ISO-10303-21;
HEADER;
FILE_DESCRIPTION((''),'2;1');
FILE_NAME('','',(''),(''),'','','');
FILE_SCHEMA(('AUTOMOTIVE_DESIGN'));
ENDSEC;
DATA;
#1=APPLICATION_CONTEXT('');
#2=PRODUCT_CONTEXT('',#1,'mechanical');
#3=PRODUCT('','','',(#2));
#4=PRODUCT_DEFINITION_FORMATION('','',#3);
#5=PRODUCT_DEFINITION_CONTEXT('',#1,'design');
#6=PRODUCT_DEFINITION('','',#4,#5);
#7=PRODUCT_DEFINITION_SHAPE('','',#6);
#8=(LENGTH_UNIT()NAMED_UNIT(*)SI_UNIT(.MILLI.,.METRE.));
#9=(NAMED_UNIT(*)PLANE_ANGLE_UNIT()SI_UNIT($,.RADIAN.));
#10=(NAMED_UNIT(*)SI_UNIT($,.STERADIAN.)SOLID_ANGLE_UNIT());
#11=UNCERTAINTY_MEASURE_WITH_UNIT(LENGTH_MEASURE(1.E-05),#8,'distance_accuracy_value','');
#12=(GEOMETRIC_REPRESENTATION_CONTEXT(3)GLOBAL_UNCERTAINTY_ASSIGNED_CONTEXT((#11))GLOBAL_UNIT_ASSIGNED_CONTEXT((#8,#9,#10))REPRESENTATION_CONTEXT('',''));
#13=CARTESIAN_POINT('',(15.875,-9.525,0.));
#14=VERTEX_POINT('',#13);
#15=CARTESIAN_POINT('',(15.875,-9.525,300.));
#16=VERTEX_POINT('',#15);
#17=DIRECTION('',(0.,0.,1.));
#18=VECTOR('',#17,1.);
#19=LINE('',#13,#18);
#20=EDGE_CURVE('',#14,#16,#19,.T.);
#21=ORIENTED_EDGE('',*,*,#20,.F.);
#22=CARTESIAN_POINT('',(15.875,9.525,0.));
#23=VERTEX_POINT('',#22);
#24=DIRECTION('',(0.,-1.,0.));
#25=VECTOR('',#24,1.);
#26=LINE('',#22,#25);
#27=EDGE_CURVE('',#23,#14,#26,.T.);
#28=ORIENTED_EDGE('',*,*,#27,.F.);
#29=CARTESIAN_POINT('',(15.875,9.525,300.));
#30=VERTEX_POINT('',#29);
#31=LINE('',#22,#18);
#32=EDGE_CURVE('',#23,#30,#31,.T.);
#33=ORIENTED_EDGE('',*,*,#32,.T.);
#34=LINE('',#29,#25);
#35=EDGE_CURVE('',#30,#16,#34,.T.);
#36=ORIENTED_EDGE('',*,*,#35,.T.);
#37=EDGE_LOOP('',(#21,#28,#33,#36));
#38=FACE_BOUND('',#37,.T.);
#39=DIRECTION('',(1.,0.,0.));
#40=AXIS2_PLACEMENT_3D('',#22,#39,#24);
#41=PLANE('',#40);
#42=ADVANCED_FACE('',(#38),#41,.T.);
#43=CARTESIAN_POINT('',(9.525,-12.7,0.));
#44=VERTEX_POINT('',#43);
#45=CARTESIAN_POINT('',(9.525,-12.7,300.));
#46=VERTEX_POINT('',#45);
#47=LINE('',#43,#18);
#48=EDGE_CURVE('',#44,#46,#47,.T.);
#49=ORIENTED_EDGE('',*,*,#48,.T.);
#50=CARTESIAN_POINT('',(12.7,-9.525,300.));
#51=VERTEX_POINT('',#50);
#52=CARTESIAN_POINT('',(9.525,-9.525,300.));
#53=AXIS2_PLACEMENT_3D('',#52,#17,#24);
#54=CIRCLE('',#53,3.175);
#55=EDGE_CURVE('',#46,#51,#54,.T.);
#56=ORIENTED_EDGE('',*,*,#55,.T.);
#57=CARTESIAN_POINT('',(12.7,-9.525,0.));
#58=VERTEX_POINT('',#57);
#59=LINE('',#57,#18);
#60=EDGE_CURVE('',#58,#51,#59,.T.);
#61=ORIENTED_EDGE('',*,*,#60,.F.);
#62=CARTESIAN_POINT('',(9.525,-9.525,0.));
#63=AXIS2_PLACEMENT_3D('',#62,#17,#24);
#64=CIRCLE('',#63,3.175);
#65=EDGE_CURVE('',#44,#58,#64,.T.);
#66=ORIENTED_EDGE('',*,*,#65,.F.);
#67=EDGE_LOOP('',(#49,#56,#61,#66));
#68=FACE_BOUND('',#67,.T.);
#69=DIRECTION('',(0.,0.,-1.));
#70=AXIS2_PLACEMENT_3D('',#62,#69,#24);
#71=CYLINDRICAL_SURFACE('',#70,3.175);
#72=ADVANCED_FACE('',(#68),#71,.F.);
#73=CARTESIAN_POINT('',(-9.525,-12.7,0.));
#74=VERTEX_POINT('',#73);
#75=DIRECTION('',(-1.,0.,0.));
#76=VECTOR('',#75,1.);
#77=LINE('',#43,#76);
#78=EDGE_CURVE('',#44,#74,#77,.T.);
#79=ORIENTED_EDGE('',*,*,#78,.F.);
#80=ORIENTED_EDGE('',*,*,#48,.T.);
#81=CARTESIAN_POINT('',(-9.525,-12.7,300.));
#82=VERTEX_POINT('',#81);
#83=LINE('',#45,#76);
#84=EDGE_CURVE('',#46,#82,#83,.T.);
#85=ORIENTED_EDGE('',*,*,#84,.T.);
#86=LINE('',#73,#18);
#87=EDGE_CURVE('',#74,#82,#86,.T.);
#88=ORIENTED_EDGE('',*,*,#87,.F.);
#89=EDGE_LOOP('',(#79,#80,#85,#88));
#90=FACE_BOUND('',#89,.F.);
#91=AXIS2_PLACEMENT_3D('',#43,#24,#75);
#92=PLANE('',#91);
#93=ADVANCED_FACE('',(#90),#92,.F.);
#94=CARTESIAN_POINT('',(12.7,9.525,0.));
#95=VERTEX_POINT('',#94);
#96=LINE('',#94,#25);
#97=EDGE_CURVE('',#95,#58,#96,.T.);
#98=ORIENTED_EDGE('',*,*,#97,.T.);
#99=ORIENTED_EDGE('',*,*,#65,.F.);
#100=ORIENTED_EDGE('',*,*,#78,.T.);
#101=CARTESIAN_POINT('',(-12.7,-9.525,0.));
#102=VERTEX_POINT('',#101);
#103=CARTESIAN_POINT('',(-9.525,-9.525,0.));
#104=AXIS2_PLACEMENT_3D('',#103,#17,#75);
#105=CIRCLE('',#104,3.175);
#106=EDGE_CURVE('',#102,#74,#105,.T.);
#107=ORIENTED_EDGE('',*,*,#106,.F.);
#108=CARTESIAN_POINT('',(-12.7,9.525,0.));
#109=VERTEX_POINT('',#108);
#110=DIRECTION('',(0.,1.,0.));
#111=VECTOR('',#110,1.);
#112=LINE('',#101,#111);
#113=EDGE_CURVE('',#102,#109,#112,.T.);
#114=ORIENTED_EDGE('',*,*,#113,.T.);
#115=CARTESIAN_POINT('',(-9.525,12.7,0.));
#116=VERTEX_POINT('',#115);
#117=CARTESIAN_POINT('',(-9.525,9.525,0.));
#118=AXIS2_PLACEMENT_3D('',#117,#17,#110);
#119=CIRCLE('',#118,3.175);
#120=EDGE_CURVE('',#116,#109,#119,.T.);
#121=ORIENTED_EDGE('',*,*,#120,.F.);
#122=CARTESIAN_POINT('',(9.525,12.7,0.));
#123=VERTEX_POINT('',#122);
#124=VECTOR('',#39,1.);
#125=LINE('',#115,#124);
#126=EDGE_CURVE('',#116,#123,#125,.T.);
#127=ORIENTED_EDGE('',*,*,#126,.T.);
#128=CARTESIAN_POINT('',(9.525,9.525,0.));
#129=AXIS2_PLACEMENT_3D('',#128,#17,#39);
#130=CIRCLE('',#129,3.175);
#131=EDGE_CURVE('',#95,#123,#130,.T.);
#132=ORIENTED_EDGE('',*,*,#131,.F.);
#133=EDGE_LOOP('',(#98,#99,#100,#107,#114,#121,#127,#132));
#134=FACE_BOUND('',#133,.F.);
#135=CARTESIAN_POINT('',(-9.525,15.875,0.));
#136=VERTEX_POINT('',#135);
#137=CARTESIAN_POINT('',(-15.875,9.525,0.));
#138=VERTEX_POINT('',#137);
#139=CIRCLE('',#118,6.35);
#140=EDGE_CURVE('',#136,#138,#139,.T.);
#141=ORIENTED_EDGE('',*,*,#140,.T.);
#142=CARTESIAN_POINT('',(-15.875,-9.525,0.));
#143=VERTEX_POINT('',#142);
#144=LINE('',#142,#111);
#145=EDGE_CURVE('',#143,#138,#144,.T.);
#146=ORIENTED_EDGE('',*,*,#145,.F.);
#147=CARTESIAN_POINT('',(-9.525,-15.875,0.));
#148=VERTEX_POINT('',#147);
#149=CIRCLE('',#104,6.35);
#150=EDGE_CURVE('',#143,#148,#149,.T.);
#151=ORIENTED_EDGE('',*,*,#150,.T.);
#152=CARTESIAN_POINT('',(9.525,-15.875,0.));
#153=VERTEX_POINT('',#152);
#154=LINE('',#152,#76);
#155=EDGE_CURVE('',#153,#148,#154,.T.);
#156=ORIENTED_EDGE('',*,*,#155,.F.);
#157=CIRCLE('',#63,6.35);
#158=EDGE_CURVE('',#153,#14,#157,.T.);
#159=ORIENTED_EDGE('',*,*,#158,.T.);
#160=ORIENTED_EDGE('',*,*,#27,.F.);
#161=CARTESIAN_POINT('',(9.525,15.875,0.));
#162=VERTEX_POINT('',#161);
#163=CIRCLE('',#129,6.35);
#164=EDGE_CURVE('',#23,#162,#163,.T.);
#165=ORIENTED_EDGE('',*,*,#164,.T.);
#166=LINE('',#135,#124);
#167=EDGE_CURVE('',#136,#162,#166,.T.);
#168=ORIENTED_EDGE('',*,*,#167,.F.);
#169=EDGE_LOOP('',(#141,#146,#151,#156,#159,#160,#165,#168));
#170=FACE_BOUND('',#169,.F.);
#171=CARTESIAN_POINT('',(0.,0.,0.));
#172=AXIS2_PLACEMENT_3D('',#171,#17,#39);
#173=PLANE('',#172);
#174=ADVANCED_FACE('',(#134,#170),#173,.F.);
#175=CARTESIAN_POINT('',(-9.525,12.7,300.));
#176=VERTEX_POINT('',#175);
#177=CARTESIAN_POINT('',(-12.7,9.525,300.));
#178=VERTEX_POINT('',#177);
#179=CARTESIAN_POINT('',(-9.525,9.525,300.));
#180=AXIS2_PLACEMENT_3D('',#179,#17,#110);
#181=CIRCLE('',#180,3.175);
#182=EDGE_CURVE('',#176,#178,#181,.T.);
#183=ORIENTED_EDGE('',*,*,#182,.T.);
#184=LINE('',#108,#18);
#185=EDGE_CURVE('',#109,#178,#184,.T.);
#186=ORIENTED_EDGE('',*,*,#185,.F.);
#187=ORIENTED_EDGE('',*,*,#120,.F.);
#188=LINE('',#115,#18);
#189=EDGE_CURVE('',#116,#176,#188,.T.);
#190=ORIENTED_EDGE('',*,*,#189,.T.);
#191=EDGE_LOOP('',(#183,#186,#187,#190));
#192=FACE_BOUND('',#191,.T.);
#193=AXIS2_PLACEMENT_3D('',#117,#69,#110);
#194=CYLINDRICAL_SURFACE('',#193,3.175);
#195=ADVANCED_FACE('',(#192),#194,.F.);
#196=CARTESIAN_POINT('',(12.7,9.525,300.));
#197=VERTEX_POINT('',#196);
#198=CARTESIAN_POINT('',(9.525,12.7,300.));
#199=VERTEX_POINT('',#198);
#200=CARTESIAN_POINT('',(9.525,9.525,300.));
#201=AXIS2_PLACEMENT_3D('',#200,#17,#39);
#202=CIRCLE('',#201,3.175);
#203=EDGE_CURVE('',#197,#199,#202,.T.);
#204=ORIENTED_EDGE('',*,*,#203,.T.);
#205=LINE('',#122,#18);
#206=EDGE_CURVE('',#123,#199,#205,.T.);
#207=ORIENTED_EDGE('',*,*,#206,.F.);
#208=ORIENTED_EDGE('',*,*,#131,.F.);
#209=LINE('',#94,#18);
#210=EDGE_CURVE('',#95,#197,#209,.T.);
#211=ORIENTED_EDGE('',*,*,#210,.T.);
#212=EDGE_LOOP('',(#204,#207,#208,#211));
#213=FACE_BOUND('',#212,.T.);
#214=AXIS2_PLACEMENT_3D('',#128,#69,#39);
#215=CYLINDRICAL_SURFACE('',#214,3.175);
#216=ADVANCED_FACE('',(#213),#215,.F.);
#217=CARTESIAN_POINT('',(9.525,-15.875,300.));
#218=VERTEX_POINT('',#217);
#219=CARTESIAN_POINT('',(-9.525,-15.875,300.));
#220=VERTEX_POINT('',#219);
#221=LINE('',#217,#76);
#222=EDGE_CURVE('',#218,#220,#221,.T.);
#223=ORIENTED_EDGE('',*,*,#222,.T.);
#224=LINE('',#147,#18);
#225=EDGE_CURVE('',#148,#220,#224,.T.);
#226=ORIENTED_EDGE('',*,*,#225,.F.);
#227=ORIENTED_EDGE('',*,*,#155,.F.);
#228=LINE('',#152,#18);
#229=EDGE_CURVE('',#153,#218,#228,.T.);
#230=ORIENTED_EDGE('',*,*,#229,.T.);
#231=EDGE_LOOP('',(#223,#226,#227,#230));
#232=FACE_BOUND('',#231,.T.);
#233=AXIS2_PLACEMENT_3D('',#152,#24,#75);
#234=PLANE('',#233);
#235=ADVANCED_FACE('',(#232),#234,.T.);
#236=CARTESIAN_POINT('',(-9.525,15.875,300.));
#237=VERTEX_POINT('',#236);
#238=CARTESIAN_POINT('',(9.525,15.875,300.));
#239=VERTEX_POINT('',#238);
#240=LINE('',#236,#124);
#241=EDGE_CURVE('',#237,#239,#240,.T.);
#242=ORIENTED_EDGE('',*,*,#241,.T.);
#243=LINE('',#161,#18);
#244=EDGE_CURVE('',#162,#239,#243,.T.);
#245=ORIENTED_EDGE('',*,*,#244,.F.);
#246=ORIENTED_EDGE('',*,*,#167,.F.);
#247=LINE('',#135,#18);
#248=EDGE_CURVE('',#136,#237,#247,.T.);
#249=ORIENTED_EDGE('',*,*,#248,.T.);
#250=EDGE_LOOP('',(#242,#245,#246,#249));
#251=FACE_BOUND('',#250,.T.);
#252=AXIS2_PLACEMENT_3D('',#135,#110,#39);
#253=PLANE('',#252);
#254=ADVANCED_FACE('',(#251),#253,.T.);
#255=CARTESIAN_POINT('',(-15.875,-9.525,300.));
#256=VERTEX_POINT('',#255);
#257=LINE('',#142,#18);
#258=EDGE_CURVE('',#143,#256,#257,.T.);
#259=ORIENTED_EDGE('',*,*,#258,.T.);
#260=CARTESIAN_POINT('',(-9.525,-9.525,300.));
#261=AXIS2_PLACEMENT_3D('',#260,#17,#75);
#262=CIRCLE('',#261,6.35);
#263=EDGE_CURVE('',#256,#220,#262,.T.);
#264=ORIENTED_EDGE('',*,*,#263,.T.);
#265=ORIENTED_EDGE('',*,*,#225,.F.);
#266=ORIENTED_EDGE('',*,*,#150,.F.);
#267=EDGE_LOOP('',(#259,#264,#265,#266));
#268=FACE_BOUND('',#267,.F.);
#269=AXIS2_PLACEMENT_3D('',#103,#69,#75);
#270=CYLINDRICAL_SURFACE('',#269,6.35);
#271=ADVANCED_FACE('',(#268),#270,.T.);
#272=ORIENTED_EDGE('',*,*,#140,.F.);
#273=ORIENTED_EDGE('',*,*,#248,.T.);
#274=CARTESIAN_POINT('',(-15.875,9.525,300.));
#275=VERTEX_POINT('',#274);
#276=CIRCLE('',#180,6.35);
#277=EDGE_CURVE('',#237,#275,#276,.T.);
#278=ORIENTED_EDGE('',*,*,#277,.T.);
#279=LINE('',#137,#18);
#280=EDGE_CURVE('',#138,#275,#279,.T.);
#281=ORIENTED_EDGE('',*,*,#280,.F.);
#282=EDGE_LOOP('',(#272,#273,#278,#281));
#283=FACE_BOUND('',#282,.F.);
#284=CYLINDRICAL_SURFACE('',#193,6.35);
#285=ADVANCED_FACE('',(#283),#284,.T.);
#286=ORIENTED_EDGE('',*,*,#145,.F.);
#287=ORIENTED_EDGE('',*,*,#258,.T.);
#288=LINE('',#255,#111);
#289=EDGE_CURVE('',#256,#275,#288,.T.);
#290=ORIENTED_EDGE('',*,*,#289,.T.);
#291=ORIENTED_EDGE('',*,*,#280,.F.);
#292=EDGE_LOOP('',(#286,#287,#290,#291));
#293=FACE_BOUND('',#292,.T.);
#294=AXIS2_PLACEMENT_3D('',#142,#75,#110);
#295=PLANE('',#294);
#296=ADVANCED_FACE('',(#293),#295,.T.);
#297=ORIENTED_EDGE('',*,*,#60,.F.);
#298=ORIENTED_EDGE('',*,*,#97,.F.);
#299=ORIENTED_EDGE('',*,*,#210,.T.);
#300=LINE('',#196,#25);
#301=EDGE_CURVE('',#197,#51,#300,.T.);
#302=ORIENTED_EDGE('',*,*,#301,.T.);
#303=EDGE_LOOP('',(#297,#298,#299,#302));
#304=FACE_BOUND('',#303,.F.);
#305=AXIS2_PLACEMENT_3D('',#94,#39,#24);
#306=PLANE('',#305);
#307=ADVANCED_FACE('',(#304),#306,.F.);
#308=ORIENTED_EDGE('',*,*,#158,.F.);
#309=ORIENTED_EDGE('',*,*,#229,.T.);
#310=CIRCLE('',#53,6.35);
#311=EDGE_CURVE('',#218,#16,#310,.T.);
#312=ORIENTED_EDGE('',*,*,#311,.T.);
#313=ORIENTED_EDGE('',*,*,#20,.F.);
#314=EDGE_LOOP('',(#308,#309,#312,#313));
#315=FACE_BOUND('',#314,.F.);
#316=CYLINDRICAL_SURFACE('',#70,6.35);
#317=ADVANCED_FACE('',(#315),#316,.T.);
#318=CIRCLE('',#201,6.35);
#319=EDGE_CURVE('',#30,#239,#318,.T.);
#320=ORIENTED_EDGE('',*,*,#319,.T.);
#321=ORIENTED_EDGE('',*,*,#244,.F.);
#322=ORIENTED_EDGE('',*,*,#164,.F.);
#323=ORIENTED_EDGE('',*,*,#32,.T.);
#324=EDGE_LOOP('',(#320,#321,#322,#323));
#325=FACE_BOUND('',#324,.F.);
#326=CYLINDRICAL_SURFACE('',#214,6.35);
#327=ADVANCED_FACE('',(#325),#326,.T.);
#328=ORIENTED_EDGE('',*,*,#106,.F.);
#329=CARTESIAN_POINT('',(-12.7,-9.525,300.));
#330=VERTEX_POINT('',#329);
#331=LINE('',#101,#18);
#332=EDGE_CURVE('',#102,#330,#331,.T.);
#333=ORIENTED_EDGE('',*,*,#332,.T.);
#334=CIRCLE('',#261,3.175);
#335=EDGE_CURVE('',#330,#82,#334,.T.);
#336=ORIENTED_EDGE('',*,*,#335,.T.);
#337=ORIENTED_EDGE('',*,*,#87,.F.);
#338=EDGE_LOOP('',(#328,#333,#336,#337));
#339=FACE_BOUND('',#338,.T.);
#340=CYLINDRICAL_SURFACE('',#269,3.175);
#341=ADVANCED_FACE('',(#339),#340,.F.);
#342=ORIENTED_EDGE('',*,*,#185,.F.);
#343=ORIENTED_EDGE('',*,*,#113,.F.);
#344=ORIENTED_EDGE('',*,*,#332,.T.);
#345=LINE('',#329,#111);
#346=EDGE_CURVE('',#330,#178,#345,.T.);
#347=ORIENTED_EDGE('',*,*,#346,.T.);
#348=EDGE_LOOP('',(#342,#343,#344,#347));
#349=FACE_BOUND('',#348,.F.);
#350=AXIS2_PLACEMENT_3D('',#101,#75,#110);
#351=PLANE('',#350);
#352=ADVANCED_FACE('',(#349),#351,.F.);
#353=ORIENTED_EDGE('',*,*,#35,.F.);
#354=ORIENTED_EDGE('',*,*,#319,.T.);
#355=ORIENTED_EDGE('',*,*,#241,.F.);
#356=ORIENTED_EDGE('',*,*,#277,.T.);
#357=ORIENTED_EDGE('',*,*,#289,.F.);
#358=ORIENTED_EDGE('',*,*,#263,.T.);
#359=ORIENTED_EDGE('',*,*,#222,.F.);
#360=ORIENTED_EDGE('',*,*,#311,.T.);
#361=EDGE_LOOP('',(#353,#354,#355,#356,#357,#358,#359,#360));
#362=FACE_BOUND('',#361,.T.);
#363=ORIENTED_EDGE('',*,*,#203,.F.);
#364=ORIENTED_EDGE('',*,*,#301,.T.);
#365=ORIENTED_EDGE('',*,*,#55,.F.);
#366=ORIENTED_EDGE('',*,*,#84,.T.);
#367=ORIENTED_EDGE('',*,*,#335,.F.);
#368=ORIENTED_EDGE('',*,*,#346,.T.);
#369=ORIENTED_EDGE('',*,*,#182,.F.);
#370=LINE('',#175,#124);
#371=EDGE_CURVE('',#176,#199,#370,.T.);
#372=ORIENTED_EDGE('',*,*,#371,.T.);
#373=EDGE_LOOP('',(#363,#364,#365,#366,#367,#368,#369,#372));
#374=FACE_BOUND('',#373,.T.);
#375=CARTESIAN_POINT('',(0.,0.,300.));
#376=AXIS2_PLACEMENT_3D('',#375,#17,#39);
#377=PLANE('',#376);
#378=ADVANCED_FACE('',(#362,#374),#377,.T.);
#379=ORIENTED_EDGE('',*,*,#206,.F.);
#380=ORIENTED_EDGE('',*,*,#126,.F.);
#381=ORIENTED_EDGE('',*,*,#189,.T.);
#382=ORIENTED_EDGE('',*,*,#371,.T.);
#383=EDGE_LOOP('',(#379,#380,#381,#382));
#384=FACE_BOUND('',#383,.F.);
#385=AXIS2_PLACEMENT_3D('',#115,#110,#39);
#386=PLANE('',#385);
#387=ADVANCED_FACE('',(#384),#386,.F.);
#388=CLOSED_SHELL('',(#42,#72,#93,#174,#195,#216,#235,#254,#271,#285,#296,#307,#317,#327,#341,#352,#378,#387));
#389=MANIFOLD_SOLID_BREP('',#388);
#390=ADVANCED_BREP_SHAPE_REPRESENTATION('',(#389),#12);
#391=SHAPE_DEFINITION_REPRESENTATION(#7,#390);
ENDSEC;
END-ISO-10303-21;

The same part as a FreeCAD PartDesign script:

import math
import FreeCAD as App
import Part
import Sketcher
from FreeCAD import Vector
Q = App.Units.Quantity

doc = App.newDocument("Part")
params = doc.addObject("Spreadsheet::Sheet", "Params")
for row, (alias, value) in enumerate([
    ("sketch1_radius", "0.25 in"),
    ("sketch1_radius2", "0.125 in"),
    ("pad1_length", "300 mm"),
], start=1):
    params.set(f"A{row}", alias)
    params.set(f"B{row}", "=" + value)
    params.setAlias(f"B{row}", alias)

body = doc.addObject("PartDesign::Body", "Body")

# Sketch on XY plane
sketch1 = body.newObject("Sketcher::SketchObject", "Sketch")
sketch1.AttachmentSupport = (doc.getObject("XY_Plane"), [""])
sketch1.MapMode = "FlatFace"
sketch1.addGeometry([
    Part.LineSegment(Vector(-15.9, 9.5, 0), Vector(-15.9, -9.5, 0)),  # 0
    Part.ArcOfCircle(Part.Circle(Vector(-9.5, -9.5, 0), Vector(0, 0, 1), 6.3), math.radians(180), math.radians(270)),  # 1
    Part.LineSegment(Vector(-9.5, -15.9, 0), Vector(9.5, -15.9, 0)),  # 2
    Part.ArcOfCircle(Part.Circle(Vector(9.5, -9.5, 0), Vector(0, 0, 1), 6.3), math.radians(-90), math.radians(0)),  # 3
    Part.LineSegment(Vector(15.9, -9.5, 0), Vector(15.9, 9.5, 0)),  # 4
    Part.ArcOfCircle(Part.Circle(Vector(9.5, 9.5, 0), Vector(0, 0, 1), 6.3), math.radians(0), math.radians(90)),  # 5
    Part.LineSegment(Vector(9.5, 15.9, 0), Vector(-9.5, 15.9, 0)),  # 6
    Part.ArcOfCircle(Part.Circle(Vector(-9.5, 9.5, 0), Vector(0, 0, 1), 6.3), math.radians(90), math.radians(180)),  # 7
    Part.ArcOfCircle(Part.Circle(Vector(-9.5, 9.5, 0), Vector(0, 0, 1), 3.2), math.radians(90), math.radians(180)),  # 8
    Part.LineSegment(Vector(-9.5, 12.7, 0), Vector(9.5, 12.7, 0)),  # 9
    Part.ArcOfCircle(Part.Circle(Vector(9.5, 9.5, 0), Vector(0, 0, 1), 3.2), math.radians(0), math.radians(90)),  # 10
    Part.LineSegment(Vector(12.7, 9.5, 0), Vector(12.7, -9.5, 0)),  # 11
    Part.ArcOfCircle(Part.Circle(Vector(9.5, -9.5, 0), Vector(0, 0, 1), 3.2), math.radians(-90), math.radians(0)),  # 12
    Part.LineSegment(Vector(9.5, -12.7, 0), Vector(-9.5, -12.7, 0)),  # 13
    Part.ArcOfCircle(Part.Circle(Vector(-9.5, -9.5, 0), Vector(0, 0, 1), 3.2), math.radians(180), math.radians(270)),  # 14
    Part.LineSegment(Vector(-12.7, -9.5, 0), Vector(-12.7, 9.5, 0)),  # 15
], False)
sketch1.addConstraint([
    Sketcher.Constraint("Tangent", 0, 2, 1, 1),
    Sketcher.Constraint("Tangent", 1, 2, 2, 1),
    Sketcher.Constraint("Tangent", 2, 2, 3, 1),
    Sketcher.Constraint("Tangent", 3, 2, 4, 1),
    Sketcher.Constraint("Tangent", 4, 2, 5, 1),
    Sketcher.Constraint("Tangent", 5, 2, 6, 1),
    Sketcher.Constraint("Tangent", 6, 2, 7, 1),
    Sketcher.Constraint("Tangent", 7, 2, 0, 1),
    Sketcher.Constraint("Tangent", 8, 1, 9, 1),
    Sketcher.Constraint("Tangent", 9, 2, 10, 2),
    Sketcher.Constraint("Tangent", 10, 1, 11, 1),
    Sketcher.Constraint("Tangent", 11, 2, 12, 2),
    Sketcher.Constraint("Tangent", 12, 1, 13, 1),
    Sketcher.Constraint("Tangent", 13, 2, 14, 2),
    Sketcher.Constraint("Tangent", 14, 1, 15, 1),
    Sketcher.Constraint("Tangent", 15, 2, 8, 2),
    Sketcher.Constraint("Vertical", 0),
    Sketcher.Constraint("Horizontal", 2),
    Sketcher.Constraint("Vertical", 4),
    Sketcher.Constraint("Horizontal", 6),
    Sketcher.Constraint("Horizontal", 9),
    Sketcher.Constraint("Vertical", 11),
    Sketcher.Constraint("Horizontal", 13),
    Sketcher.Constraint("Vertical", 15),
    Sketcher.Constraint("Coincident", 8, 3, 7, 3),
    Sketcher.Constraint("Coincident", 10, 3, 5, 3),
    Sketcher.Constraint("Coincident", 12, 3, 3, 3),
    Sketcher.Constraint("Equal", 1, 3),
    Sketcher.Constraint("Equal", 3, 5),
    Sketcher.Constraint("Equal", 5, 7),
    Sketcher.Constraint("Equal", 12, 14),
    Sketcher.Constraint("Symmetric", 1, 3, 5, 3, -1, 1),
    Sketcher.Constraint("Equal", 13, 0),
    Sketcher.Constraint("Radius", 1, Q("0.25 in")),
    Sketcher.Constraint("Radius", 8, Q("0.125 in")),
    Sketcher.Constraint("DistanceX", 0, 2, -1, 1, Q("0.625 in")),
])
sketch1.setExpression("Constraints[33]", "Params.sketch1_radius")
sketch1.setExpression("Constraints[34]", "Params.sketch1_radius2")
pad1 = body.newObject("PartDesign::Pad", "Pad")
pad1.Profile = sketch1
pad1.setExpression("Length", "Params.pad1_length")

doc.recompute()
